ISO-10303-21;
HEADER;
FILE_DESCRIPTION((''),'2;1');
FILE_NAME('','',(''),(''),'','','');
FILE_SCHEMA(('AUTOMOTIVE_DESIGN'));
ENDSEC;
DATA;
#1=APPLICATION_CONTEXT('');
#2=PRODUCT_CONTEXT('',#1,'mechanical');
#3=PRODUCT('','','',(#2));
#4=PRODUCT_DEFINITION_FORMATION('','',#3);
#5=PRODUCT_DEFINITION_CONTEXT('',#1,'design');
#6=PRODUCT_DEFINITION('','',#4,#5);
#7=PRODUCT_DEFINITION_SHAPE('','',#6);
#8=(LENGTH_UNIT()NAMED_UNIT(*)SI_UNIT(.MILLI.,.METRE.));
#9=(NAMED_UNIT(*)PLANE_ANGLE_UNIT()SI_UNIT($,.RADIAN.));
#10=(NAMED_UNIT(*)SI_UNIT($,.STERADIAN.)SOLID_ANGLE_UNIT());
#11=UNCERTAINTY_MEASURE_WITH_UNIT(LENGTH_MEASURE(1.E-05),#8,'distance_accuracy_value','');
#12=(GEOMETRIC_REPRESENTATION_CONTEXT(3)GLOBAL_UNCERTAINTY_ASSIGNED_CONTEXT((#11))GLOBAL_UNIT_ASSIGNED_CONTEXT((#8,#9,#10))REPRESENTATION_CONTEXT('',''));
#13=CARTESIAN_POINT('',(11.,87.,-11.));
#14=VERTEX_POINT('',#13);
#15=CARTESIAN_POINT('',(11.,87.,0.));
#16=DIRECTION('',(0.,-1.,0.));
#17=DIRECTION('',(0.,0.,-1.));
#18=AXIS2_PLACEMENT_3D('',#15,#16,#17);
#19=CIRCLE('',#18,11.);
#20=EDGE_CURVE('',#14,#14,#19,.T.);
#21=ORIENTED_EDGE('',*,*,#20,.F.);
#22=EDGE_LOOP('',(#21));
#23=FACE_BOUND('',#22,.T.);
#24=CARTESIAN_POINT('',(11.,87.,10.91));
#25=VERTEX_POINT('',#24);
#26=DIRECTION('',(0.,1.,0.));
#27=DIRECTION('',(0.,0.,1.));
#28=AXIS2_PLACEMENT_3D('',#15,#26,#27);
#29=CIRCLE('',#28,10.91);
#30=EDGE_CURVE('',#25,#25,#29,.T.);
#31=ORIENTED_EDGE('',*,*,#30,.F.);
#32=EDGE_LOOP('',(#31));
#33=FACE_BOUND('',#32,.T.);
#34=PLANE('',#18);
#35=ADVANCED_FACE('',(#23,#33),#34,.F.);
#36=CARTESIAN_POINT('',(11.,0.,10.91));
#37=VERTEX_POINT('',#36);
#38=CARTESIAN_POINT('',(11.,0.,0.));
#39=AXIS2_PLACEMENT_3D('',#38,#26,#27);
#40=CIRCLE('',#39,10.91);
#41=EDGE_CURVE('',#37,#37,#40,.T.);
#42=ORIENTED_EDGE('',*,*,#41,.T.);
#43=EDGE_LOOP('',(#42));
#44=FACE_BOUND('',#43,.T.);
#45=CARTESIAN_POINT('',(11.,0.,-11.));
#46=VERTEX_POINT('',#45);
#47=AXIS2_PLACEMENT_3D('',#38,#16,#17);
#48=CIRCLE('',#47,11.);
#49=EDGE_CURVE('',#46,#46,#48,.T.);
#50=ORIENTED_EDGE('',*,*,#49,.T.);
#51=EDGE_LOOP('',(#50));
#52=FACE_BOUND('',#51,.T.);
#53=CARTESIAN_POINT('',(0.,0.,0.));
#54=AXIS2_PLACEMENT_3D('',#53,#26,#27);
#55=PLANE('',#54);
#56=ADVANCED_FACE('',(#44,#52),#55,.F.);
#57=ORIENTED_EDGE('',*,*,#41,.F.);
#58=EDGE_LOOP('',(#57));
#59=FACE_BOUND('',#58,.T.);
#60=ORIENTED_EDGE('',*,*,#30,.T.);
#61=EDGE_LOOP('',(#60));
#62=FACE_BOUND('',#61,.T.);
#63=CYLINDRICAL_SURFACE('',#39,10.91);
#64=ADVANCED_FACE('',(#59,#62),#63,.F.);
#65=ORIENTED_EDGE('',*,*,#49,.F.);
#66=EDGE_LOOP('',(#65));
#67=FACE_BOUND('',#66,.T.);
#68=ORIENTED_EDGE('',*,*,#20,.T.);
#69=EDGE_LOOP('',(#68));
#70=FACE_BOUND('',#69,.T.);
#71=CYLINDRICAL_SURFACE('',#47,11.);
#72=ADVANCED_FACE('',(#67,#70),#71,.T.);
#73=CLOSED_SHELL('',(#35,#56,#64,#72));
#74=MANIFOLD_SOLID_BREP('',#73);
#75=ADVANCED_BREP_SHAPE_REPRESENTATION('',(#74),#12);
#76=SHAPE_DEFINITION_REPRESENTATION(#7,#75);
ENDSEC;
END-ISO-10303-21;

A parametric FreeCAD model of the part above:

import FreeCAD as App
import Part
import Sketcher

doc = App.newDocument("Part")
body = doc.addObject("PartDesign::Body", "Body")

sketch1 = body.newObject("Sketcher::SketchObject", "Sketch")
sketch1.AttachmentSupport = (doc.getObject("XY_Plane"), [""])
sketch1.MapMode = "FlatFace"
sketch1.addGeometry([
    Part.LineSegment(App.Vector(0, 87, 0), App.Vector(0, 0, 0)),
    Part.LineSegment(App.Vector(0, 0, 0), App.Vector(11, 0, 0)),
    Part.LineSegment(App.Vector(11, 0, 0), App.Vector(11, 87, 0)),
    Part.LineSegment(App.Vector(11, 87, 0), App.Vector(0, 87, 0)),
], False)
sketch1.addGeometry(Part.LineSegment(App.Vector(11, 0, 0), App.Vector(11, 87, 0)), True)
sketch1.addConstraint([
    Sketcher.Constraint("Coincident", 0, 2, 1, 1),
    Sketcher.Constraint("Coincident", 1, 2, 2, 1),
    Sketcher.Constraint("Coincident", 2, 2, 3, 1),
    Sketcher.Constraint("Coincident", 3, 2, 0, 1),
    Sketcher.Constraint("Vertical", 0),
    Sketcher.Constraint("Horizontal", 1),
    Sketcher.Constraint("Vertical", 2),
    Sketcher.Constraint("Horizontal", 3),
    Sketcher.Constraint("Vertical", 4),
    Sketcher.Constraint("Coincident", 0, 2, -1, 1),
    Sketcher.Constraint("Coincident", 4, 1, 1, 2),
    Sketcher.Constraint("Horizontal", 3, 2, 4, 2),
    Sketcher.Constraint("DistanceX", 1, 1, 1, 2, 11.0),
    Sketcher.Constraint("DistanceY", 0, 2, 0, 1, 87.0),
])
revolution = body.newObject("PartDesign::Revolution", "Revolution")
revolution.Profile = sketch1
revolution.ReferenceAxis = (sketch1, ["Axis0"])
revolution.Angle = 360

sketch2 = body.newObject("Sketcher::SketchObject", "Sketch001")
sketch2.AttachmentSupport = (doc.getObject("XZ_Plane"), [""])
sketch2.MapMode = "FlatFace"
sketch2.AttachmentOffset = App.Placement(App.Vector(0, 0, -87), App.Rotation())
sketch2.addGeometry(Part.Circle(App.Vector(11, 0, 0), App.Vector(0, 0, 1), 11), False)
sketch2.addConstraint([
    Sketcher.Constraint("PointOnObject", 0, 3, -1),
    Sketcher.Constraint("Diameter", 0, 21.82),
    Sketcher.Constraint("DistanceX", -1, 1, 0, 3, 11.0),
])
pocket1 = body.newObject("PartDesign::Pocket", "Pocket")
pocket1.Profile = sketch2
pocket1.Length = 87
pocket1.Reversed = True

doc.recompute()
